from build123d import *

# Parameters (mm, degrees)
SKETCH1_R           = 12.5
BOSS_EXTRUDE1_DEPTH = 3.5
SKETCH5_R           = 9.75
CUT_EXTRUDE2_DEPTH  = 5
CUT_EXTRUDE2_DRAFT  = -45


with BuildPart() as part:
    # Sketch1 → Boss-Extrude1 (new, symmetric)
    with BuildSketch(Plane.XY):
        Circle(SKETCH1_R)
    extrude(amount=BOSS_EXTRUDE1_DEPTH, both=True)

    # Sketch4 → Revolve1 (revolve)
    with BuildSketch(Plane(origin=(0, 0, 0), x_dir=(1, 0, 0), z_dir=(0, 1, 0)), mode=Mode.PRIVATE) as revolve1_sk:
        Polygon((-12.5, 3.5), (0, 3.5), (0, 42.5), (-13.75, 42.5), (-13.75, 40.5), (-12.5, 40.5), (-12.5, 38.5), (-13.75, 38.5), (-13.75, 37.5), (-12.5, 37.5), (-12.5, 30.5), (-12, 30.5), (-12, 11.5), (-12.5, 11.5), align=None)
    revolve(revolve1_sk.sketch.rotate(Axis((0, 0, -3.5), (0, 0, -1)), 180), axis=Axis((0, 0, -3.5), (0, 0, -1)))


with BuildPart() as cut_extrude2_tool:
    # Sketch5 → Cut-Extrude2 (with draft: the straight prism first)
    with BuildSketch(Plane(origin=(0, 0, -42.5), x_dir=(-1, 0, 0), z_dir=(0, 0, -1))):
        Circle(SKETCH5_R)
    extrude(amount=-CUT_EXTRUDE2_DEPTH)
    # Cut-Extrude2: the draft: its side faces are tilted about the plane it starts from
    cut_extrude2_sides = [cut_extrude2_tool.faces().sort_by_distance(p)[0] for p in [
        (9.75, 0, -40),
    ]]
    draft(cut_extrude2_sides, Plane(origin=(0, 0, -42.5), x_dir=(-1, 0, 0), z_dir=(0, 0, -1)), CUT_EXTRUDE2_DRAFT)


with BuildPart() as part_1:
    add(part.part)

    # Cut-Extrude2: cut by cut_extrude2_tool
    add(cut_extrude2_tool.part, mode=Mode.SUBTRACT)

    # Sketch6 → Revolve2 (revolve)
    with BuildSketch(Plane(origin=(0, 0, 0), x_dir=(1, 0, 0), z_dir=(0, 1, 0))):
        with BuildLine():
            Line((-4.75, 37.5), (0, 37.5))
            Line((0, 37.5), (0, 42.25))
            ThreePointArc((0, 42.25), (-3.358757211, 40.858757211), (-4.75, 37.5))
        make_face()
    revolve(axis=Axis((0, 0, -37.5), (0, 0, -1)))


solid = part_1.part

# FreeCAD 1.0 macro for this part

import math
import FreeCAD as App
import Part
import Sketcher
from FreeCAD import Vector
Q = App.Units.Quantity


def faces_at(feature, points):
    """Names of the faces that lie closest to the given points."""
    faces = feature.Shape.Faces
    near = lambda p: min(range(len(faces)), key=lambda i: faces[i].distToShape(Part.Vertex(*p))[0])
    return sorted({f"Face{near(p) + 1}" for p in points})


def add_polygon(sketch, points):
    """Adds a closed chain of lines whose ends are joined by coincident constraints."""
    first, n = sketch.GeometryCount, len(points)
    for a, b in zip(points, points[1:] + points[:1]):
        sketch.addGeometry(Part.LineSegment(App.Vector(*a, 0), App.Vector(*b, 0)), False)
    for i in range(n):
        sketch.addConstraint(Sketcher.Constraint("Coincident", first + i, 2, first + (i + 1) % n, 1))

doc = App.newDocument("Part")
body = doc.addObject("PartDesign::Body", "Body")

# Sketch on XY plane
sketch1 = body.newObject("Sketcher::SketchObject", "Sketch")
sketch1.AttachmentSupport = (doc.getObject("XY_Plane"), [""])
sketch1.MapMode = "FlatFace"
sketch1.addGeometry(Part.Circle(Vector(0, 0, 0), Vector(0, 0, 1), 12), False)
sketch1.addConstraint([
    Sketcher.Constraint("Coincident", 0, 3, -1, 1),
    Sketcher.Constraint("Diameter", 0, Q("25 mm")),
])
pad1 = body.newObject("PartDesign::Pad", "Pad")
pad1.Profile = sketch1
pad1.Length = 7
pad1.Midplane = True

# Sketch on XZ plane
sketch2 = body.newObject("Sketcher::SketchObject", "Sketch001")
sketch2.AttachmentSupport = (doc.getObject("XZ_Plane"), [""])
sketch2.MapMode = "FlatFace"
add_polygon(sketch2, [(-12.5, -3.5), (0, -3.5), (0, -42.5), (-13.8, -42.5), (-13.8, -40.5), (-12.5, -40.5), (-12.5, -38.5), (-13.8, -38.5), (-13.8, -37.5), (-12.5, -37.5), (-12.5, -30.5), (-12, -30.5), (-12, -11.5), (-12.5, -11.5)])  # lines 0-13
sketch2.addConstraint([
    Sketcher.Constraint("Horizontal", 0),
    Sketcher.Constraint("Vertical", 1),
    Sketcher.Constraint("Horizontal", 2),
    Sketcher.Constraint("Vertical", 3),
    Sketcher.Constraint("Horizontal", 4),
    Sketcher.Constraint("Vertical", 5),
    Sketcher.Constraint("Horizontal", 6),
    Sketcher.Constraint("Vertical", 7),
    Sketcher.Constraint("Horizontal", 8),
    Sketcher.Constraint("Vertical", 9),
    Sketcher.Constraint("Horizontal", 10),
    Sketcher.Constraint("Vertical", 11),
    Sketcher.Constraint("Horizontal", 12),
    Sketcher.Constraint("Vertical", 13),
    Sketcher.Constraint("PointOnObject", 0, 2, -2),
    Sketcher.Constraint("Vertical", 3, 2, 6, 2),
    Sketcher.Constraint("Vertical", 5, 2, 8, 2),
    Sketcher.Constraint("Vertical", 9, 2, 12, 2),
    Sketcher.Constraint("Equal", 3, 5),
    Sketcher.Constraint("DistanceY", 1, 2, 1, 1, Q("39 mm")),
    Sketcher.Constraint("DistanceY", 3, 1, 3, 2, Q("2 mm")),
    Sketcher.Constraint("DistanceY", 7, 1, 7, 2, Q("1 mm")),
    Sketcher.Constraint("DistanceY", 9, 1, 9, 2, Q("7 mm")),
    Sketcher.Constraint("DistanceY", 11, 1, 11, 2, Q("19 mm")),
    Sketcher.Constraint("DistanceX", 0, 1, 0, 2, Q("12.5 mm")),
    Sketcher.Constraint("DistanceX", 10, 1, 10, 2, Q("0.5 mm")),
    Sketcher.Constraint("DistanceX", 2, 2, 2, 1, Q("13.75 mm")),
    Sketcher.Constraint("DistanceY", 0, 2, -1, 1, Q("3.5 mm")),
])
revolution = body.newObject("PartDesign::Revolution", "Revolution")
revolution.Profile = sketch2
revolution.ReferenceAxis = (sketch2, ["V_Axis"])
revolution.Angle = 360
body2 = doc.addObject("PartDesign::Body", "Body001")

# Sketch on XY plane
sketch3 = body2.newObject("Sketcher::SketchObject", "Sketch002")
sketch3.AttachmentSupport = (doc.getObject("XY_Plane001"), [""])
sketch3.MapMode = "FlatFace"
sketch3.AttachmentOffset = App.Placement(Vector(0, 0, -42.5), App.Rotation())
sketch3.addGeometry(Part.Circle(Vector(0, 0, 0), Vector(0, 0, 1), 10), False)
sketch3.addConstraint([
    Sketcher.Constraint("Coincident", 0, 3, -1, 1),
    Sketcher.Constraint("Diameter", 0, Q("19.5 mm")),
])
pad2 = body2.newObject("PartDesign::Pad", "Pad001")
pad2.Profile = sketch3
pad2.Length = 5
doc.recompute()

datumplane = body2.newObject("PartDesign::Plane", "DatumPlane")
datumplane.AttachmentSupport = (doc.getObject("XY_Plane001"), [""])
datumplane.MapMode = "FlatFace"
datumplane.AttachmentOffset = App.Placement(Vector(0, 0, -42.5), App.Rotation())
draft = body2.newObject("PartDesign::Draft", "Draft")
draft.Base = (pad2, faces_at(pad2, [(9.75, 0, -40)]))
draft.NeutralPlane = (datumplane, [""])
draft.Angle = 45
draft.Reversed = False
doc.recompute()

boolean = body.newObject("PartDesign::Boolean", "Boolean")
boolean.Type = "Cut"
boolean.addObjects([body2])

# Sketch on XZ plane
sketch4 = body.newObject("Sketcher::SketchObject", "Sketch003")
sketch4.AttachmentSupport = (doc.getObject("XZ_Plane"), [""])
sketch4.MapMode = "FlatFace"
sketch4.addGeometry([
    Part.LineSegment(Vector(-4.8, -37.5, 0), Vector(0, -37.5, 0)),
    Part.LineSegment(Vector(0, -37.5, 0), Vector(0, -42.2, 0)),
    Part.ArcOfCircle(Part.Circle(Vector(0, -37.5, 0), Vector(0, 0, 1), 4.7), math.radians(180), math.radians(270)),
], False)
sketch4.addConstraint([
    Sketcher.Constraint("Coincident", 0, 2, 1, 1),
    Sketcher.Constraint("Coincident", 1, 2, 2, 2),
    Sketcher.Constraint("Coincident", 2, 1, 0, 1),
    Sketcher.Constraint("Horizontal", 0),
    Sketcher.Constraint("Vertical", 1),
    Sketcher.Constraint("Coincident", 0, 2, 2, 3),
    Sketcher.Constraint("PointOnObject", 2, 3, -2),
    Sketcher.Constraint("Radius", 2, Q("4.75 mm")),
    Sketcher.Constraint("DistanceY", 2, 3, -1, 1, Q("37.5 mm")),
])
revolution2 = body.newObject("PartDesign::Revolution", "Revolution001")
revolution2.Profile = sketch4
revolution2.ReferenceAxis = (sketch4, ["V_Axis"])
revolution2.Angle = 360

doc.recompute()
